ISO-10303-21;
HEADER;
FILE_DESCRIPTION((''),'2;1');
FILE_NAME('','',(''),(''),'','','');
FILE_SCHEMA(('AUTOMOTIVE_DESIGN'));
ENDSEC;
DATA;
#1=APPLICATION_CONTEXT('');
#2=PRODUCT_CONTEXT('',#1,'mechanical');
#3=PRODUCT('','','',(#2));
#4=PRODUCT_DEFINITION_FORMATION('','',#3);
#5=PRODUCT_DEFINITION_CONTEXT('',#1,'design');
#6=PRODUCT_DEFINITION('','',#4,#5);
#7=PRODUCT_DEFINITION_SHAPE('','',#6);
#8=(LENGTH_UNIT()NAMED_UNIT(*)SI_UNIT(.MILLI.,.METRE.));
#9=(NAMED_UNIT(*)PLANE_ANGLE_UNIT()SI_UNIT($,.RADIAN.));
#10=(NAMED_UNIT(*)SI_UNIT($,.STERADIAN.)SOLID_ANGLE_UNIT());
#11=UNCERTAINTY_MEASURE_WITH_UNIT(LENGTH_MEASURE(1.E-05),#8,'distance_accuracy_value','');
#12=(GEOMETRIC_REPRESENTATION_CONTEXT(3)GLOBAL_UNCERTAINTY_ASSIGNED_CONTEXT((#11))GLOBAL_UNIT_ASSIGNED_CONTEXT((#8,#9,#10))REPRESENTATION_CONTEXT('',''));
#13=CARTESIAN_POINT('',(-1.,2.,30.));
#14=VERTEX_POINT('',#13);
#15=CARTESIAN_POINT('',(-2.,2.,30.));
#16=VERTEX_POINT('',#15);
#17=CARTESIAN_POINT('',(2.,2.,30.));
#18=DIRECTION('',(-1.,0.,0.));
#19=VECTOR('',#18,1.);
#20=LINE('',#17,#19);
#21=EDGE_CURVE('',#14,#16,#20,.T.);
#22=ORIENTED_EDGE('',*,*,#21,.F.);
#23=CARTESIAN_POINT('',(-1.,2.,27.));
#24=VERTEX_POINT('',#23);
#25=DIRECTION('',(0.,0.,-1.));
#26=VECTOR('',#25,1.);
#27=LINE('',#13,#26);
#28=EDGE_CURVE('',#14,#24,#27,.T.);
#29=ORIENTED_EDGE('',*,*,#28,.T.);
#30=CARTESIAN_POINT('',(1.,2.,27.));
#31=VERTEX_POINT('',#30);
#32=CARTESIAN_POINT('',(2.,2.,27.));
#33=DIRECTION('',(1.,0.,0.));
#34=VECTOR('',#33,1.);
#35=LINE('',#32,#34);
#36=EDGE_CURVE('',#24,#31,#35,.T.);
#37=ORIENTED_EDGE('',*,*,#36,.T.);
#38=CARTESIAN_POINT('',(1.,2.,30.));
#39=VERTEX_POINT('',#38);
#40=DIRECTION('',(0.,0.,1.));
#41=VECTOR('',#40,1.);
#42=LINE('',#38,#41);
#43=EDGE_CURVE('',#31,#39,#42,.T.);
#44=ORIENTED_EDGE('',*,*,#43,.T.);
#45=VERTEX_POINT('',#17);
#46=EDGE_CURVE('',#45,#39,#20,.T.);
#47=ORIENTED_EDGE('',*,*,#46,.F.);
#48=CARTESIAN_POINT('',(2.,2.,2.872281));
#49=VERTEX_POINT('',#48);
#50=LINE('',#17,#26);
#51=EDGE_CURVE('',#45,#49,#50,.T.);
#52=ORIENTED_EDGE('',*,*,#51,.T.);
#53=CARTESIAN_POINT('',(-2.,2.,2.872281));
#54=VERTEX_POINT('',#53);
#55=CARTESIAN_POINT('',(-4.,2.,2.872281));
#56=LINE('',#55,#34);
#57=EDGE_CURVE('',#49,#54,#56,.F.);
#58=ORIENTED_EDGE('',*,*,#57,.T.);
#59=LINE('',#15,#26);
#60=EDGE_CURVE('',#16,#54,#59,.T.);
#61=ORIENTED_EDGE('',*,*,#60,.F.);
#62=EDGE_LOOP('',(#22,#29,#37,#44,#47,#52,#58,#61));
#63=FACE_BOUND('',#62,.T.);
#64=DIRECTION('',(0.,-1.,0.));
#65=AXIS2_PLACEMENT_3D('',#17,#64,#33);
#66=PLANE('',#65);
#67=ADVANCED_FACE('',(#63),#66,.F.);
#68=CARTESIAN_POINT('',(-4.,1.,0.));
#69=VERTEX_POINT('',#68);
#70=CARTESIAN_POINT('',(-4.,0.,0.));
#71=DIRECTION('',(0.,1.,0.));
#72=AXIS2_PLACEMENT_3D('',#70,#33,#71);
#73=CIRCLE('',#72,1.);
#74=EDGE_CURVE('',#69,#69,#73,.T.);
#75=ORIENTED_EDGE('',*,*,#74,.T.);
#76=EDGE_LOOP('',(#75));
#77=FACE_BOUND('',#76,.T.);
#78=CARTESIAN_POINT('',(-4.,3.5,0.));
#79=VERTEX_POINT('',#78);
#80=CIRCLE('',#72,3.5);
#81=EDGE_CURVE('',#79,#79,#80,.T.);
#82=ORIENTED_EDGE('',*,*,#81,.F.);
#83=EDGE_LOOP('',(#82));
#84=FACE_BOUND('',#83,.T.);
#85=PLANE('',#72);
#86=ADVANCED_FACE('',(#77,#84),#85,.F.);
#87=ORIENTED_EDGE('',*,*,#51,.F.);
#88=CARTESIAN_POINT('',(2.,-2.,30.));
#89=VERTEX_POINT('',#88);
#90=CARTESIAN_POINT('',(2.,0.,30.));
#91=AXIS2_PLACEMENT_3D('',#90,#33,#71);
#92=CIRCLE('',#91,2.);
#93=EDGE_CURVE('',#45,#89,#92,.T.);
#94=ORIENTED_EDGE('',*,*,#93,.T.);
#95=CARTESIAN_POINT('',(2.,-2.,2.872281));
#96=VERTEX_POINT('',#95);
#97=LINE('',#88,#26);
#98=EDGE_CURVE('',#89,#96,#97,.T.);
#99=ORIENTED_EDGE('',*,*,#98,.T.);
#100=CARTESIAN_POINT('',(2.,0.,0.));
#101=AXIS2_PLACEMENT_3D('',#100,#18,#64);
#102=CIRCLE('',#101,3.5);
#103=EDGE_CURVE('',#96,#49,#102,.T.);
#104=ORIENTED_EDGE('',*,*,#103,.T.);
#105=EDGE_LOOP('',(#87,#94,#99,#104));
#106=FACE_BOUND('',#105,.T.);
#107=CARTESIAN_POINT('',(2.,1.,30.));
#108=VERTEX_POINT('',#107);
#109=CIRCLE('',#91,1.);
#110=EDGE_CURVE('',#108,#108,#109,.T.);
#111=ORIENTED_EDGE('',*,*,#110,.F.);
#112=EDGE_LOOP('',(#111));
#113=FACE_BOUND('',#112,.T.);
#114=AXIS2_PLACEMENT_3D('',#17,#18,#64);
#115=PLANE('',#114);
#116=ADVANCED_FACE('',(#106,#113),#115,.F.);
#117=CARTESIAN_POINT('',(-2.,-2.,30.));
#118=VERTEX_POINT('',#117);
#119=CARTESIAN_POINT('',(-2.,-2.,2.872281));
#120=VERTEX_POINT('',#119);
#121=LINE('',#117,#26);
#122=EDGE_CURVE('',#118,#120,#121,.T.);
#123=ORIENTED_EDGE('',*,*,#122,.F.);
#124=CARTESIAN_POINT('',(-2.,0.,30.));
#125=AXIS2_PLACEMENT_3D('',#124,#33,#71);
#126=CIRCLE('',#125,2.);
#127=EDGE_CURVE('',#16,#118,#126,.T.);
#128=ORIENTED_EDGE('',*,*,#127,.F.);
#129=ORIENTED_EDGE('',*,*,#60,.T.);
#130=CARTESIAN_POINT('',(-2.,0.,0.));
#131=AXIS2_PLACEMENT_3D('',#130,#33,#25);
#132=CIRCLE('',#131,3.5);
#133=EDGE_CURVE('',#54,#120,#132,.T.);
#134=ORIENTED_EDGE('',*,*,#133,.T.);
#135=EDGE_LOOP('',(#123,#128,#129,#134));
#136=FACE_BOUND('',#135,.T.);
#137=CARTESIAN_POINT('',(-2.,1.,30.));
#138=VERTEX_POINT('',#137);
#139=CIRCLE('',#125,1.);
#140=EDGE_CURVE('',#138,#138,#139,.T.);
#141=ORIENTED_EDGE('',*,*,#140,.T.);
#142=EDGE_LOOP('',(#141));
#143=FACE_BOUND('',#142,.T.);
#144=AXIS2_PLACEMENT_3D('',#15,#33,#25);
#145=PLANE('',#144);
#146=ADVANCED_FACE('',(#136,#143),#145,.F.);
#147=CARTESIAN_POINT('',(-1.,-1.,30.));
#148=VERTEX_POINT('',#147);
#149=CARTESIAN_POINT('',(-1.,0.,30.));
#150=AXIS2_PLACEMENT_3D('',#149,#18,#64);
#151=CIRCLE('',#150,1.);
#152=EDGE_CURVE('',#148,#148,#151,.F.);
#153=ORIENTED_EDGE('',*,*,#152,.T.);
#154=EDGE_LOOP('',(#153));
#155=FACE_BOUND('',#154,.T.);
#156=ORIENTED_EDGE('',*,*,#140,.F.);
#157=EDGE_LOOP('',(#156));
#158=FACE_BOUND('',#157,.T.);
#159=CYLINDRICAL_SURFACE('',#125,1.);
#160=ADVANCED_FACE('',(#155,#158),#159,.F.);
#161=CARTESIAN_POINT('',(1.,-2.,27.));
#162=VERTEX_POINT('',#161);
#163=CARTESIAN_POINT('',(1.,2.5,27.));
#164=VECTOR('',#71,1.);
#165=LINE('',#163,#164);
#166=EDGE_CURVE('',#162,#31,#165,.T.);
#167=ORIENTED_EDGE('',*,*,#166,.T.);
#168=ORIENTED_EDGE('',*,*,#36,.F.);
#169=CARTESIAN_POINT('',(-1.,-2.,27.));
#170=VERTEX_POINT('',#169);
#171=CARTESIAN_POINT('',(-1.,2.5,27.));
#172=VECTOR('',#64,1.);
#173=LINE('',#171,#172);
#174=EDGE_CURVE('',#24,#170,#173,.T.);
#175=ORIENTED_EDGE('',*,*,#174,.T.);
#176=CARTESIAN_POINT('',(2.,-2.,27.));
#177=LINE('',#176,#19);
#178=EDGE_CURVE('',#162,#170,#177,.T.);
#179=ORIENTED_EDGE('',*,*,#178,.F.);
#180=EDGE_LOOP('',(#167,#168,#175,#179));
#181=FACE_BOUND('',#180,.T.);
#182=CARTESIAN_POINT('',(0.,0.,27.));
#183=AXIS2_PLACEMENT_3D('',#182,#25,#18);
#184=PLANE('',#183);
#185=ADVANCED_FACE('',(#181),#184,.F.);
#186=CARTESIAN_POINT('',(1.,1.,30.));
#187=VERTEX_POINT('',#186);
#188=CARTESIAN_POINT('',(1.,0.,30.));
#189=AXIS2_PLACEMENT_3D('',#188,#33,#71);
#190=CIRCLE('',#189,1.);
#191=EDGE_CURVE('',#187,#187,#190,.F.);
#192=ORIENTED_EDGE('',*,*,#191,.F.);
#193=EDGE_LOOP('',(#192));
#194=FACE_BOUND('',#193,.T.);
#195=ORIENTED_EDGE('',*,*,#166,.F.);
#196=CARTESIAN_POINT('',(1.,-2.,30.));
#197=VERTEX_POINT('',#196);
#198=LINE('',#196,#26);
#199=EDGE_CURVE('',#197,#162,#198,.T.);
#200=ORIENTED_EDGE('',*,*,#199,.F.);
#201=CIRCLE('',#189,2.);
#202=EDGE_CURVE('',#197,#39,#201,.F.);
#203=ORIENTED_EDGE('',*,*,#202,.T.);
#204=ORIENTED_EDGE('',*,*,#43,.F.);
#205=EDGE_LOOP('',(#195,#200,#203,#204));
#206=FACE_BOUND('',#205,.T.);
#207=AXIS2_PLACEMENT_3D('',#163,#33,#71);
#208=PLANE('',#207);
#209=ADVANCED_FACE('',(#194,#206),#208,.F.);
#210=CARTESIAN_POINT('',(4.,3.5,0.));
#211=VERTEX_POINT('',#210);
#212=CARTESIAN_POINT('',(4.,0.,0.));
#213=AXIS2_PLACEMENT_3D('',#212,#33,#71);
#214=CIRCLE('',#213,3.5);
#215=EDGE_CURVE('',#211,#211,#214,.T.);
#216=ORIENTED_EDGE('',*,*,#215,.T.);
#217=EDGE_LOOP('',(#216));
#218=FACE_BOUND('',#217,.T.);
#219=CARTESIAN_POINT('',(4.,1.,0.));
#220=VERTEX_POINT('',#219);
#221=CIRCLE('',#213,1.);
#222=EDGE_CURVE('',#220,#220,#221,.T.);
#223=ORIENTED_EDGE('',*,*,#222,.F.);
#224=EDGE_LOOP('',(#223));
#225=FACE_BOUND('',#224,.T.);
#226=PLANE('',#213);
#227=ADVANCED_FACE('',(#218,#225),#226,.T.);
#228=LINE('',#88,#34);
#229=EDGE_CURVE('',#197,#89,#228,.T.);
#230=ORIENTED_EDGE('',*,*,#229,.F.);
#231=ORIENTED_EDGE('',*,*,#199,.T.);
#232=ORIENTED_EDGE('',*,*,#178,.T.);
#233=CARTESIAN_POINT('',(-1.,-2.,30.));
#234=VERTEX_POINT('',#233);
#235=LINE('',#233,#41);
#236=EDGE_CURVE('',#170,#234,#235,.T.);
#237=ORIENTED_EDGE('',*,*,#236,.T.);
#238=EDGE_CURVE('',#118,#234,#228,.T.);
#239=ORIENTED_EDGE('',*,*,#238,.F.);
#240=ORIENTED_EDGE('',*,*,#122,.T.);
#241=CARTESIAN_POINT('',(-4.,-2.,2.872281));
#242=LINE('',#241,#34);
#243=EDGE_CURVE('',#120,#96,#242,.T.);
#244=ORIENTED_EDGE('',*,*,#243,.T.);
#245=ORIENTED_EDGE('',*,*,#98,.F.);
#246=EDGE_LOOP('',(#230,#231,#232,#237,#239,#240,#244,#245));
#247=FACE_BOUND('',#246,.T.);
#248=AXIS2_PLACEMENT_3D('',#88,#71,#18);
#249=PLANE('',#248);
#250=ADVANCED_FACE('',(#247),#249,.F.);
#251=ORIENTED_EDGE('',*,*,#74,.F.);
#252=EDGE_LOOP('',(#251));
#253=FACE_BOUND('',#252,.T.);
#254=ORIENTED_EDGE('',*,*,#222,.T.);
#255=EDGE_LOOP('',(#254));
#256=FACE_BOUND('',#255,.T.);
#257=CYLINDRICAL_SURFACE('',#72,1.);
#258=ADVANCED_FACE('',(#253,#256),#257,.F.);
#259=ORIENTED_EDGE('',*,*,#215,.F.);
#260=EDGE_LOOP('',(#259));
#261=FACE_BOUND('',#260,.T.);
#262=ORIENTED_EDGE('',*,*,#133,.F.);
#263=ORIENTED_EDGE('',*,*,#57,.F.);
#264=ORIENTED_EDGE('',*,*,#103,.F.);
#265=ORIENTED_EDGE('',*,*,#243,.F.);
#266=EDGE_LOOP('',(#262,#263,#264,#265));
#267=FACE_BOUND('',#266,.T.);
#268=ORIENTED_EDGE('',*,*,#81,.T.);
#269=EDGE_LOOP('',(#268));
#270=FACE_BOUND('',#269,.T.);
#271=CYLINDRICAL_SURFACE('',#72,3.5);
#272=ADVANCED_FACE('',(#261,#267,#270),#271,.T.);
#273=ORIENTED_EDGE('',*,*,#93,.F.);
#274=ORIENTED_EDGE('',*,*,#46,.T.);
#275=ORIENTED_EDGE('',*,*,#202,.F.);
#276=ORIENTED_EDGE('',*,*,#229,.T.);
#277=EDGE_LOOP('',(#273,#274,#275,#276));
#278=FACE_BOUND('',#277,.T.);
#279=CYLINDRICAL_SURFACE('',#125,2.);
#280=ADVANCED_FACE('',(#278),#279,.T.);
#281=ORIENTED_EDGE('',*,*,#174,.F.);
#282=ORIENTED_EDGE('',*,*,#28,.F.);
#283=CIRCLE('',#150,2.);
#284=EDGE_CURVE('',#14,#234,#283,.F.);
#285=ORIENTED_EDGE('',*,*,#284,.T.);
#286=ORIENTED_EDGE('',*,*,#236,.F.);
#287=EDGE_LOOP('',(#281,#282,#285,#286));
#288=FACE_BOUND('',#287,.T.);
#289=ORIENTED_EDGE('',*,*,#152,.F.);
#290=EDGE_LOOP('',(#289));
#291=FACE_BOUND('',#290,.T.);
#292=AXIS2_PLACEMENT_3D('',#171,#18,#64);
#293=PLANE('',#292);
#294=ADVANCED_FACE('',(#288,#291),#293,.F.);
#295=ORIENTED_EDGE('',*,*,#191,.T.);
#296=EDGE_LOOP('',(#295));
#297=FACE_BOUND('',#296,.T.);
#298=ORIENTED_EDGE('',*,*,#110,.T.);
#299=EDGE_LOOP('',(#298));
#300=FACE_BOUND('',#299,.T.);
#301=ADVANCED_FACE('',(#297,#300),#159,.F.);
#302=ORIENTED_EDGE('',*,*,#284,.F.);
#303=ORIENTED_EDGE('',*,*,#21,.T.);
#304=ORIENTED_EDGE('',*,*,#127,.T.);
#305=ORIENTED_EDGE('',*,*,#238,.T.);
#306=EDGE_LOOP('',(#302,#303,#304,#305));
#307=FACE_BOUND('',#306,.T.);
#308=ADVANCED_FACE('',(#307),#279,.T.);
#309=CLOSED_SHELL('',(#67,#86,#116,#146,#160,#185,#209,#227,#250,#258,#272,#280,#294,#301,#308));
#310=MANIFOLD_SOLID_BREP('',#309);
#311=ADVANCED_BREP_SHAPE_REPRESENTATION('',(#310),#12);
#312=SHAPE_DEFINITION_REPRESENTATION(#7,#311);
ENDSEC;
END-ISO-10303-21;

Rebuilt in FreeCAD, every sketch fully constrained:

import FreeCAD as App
import Part
import Sketcher
from FreeCAD import Vector
Q = App.Units.Quantity


def add_polygon(sketch, points):
    """Adds a closed chain of lines whose ends are joined by coincident constraints."""
    first, n = sketch.GeometryCount, len(points)
    for a, b in zip(points, points[1:] + points[:1]):
        sketch.addGeometry(Part.LineSegment(App.Vector(*a, 0), App.Vector(*b, 0)), False)
    for i in range(n):
        sketch.addConstraint(Sketcher.Constraint("Coincident", first + i, 2, first + (i + 1) % n, 1))

doc = App.newDocument("Part")
body = doc.addObject("PartDesign::Body", "Body")

sketch1 = doc.addObject("Sketcher::SketchObject", "Sketch")
body.addObject(sketch1)
sketch1.AttachmentSupport = (doc.XY_Plane, [""])
sketch1.MapMode = "FlatFace"
add_polygon(sketch1, [(-2, 2), (-2, -2), (2, -2), (2, 2)])
sketch1.addConstraint(Sketcher.Constraint("Vertical", 0))
sketch1.addConstraint(Sketcher.Constraint("Horizontal", 1))
sketch1.addConstraint(Sketcher.Constraint("Vertical", 2))
sketch1.addConstraint(Sketcher.Constraint("Horizontal", 3))
sketch1.addConstraint(Sketcher.Constraint("Symmetric", 0, 2, 2, 2, -1, 1))
sketch1.addConstraint(Sketcher.Constraint("Equal", 3, 0))
sketch1.addConstraint(Sketcher.Constraint("DistanceX", 1, 1, 1, 2, Q("4 mm")))
pad1 = doc.addObject("PartDesign::Pad", "Pad")
body.addObject(pad1)
pad1.Profile = sketch1
pad1.Length = 30

sketch2 = doc.addObject("Sketcher::SketchObject", "Sketch001")
body.addObject(sketch2)
sketch2.AttachmentSupport = (doc.YZ_Plane, [""])
sketch2.MapMode = "FlatFace"
sketch2.AttachmentOffset = App.Placement(Vector(0, 0, 2), App.Rotation())
sketch2.addGeometry(Part.Circle(Vector(0, 30, 0), Vector(0, 0, 1), 2), False)
sketch2.addGeometry(Part.Circle(Vector(0, 30, 0), Vector(0, 0, 1), 1), False)
sketch2.addConstraint(Sketcher.Constraint("Coincident", 1, 3, 0, 3))
sketch2.addConstraint(Sketcher.Constraint("PointOnObject", 0, 3, -2))
sketch2.addConstraint(Sketcher.Constraint("Diameter", 0, Q("4 mm")))
sketch2.addConstraint(Sketcher.Constraint("Diameter", 1, Q("2 mm")))
sketch2.addConstraint(Sketcher.Constraint("DistanceY", -1, 1, 0, 3, Q("30 mm")))
pad2 = doc.addObject("PartDesign::Pad", "Pad001")
body.addObject(pad2)
pad2.Profile = sketch2
pad2.Length = 4
pad2.Reversed = True

sketch3 = doc.addObject("Sketcher::SketchObject", "Sketch002")
body.addObject(sketch3)
sketch3.AttachmentSupport = (doc.YZ_Plane, [""])
sketch3.MapMode = "FlatFace"
sketch3.AttachmentOffset = App.Placement(Vector(0, 0, 2), App.Rotation())
sketch3.addGeometry(Part.Circle(Vector(0, 30, 0), Vector(0, 0, 1), 1), False)
sketch3.addConstraint(Sketcher.Constraint("PointOnObject", 0, 3, -2))
sketch3.addConstraint(Sketcher.Constraint("Diameter", 0, Q("2 mm")))
sketch3.addConstraint(Sketcher.Constraint("DistanceY", -1, 1, 0, 3, Q("30 mm")))
pocket1 = doc.addObject("PartDesign::Pocket", "Pocket")
body.addObject(pocket1)
pocket1.Profile = sketch3
pocket1.Type = "ThroughAll"

sketch4 = doc.addObject("Sketcher::SketchObject", "Sketch003")
body.addObject(sketch4)
sketch4.AttachmentSupport = (doc.YZ_Plane, [""])
sketch4.MapMode = "FlatFace"
sketch4.AttachmentOffset = App.Placement(Vector(0, 0, 2), App.Rotation())
sketch4.addGeometry(Part.Circle(Vector(0, 0, 0), Vector(0, 0, 1), 3.5), False)
sketch4.addGeometry(Part.Circle(Vector(0, 0, 0), Vector(0, 0, 1), 1), False)
sketch4.addConstraint(Sketcher.Constraint("Coincident", 0, 3, -1, 1))
sketch4.addConstraint(Sketcher.Constraint("Coincident", 1, 3, -1, 1))
sketch4.addConstraint(Sketcher.Constraint("Diameter", 0, Q("7 mm")))
sketch4.addConstraint(Sketcher.Constraint("Diameter", 1, Q("2 mm")))
pad3 = doc.addObject("PartDesign::Pad", "Pad002")
body.addObject(pad3)
pad3.Profile = sketch4
pad3.Type = "TwoLengths"
pad3.Length = 2
pad3.Length2 = 6

sketch5 = doc.addObject("Sketcher::SketchObject", "Sketch004")
body.addObject(sketch5)
sketch5.AttachmentSupport = (doc.YZ_Plane, [""])
sketch5.MapMode = "FlatFace"
sketch5.AttachmentOffset = App.Placement(Vector(0, 0, 4), App.Rotation())
sketch5.addGeometry(Part.Circle(Vector(0, 0, 0), Vector(0, 0, 1), 1), False)
sketch5.addConstraint(Sketcher.Constraint("Coincident", 0, 3, -1, 1))
sketch5.addConstraint(Sketcher.Constraint("Diameter", 0, Q("2 mm")))
pocket2 = doc.addObject("PartDesign::Pocket", "Pocket001")
body.addObject(pocket2)
pocket2.Profile = sketch5
pocket2.Type = "ThroughAll"

sketch6 = doc.addObject("Sketcher::SketchObject", "Sketch005")
body.addObject(sketch6)
sketch6.AttachmentSupport = (doc.XY_Plane, [""])
sketch6.MapMode = "FlatFace"
sketch6.AttachmentOffset = App.Placement(Vector(0, 0, 29), App.Rotation())
add_polygon(sketch6, [(-1, 2.5), (-1, -2.5), (1, -2.5), (1, 2.5)])
sketch6.addConstraint(Sketcher.Constraint("Vertical", 0))
sketch6.addConstraint(Sketcher.Constraint("Horizontal", 1))
sketch6.addConstraint(Sketcher.Constraint("Vertical", 2))
sketch6.addConstraint(Sketcher.Constraint("Horizontal", 3))
sketch6.addConstraint(Sketcher.Constraint("Symmetric", 0, 2, 2, 2, -1, 1))
sketch6.addConstraint(Sketcher.Constraint("DistanceX", 1, 1, 1, 2, Q("2 mm")))
sketch6.addConstraint(Sketcher.Constraint("DistanceY", 0, 2, 0, 1, Q("5 mm")))
pocket3 = doc.addObject("PartDesign::Pocket", "Pocket002")
body.addObject(pocket3)
pocket3.Profile = sketch6
pocket3.Type = "TwoLengths"
pocket3.Length = 10
pocket3.Length2 = 2
pocket3.Reversed = True

doc.recompute()
